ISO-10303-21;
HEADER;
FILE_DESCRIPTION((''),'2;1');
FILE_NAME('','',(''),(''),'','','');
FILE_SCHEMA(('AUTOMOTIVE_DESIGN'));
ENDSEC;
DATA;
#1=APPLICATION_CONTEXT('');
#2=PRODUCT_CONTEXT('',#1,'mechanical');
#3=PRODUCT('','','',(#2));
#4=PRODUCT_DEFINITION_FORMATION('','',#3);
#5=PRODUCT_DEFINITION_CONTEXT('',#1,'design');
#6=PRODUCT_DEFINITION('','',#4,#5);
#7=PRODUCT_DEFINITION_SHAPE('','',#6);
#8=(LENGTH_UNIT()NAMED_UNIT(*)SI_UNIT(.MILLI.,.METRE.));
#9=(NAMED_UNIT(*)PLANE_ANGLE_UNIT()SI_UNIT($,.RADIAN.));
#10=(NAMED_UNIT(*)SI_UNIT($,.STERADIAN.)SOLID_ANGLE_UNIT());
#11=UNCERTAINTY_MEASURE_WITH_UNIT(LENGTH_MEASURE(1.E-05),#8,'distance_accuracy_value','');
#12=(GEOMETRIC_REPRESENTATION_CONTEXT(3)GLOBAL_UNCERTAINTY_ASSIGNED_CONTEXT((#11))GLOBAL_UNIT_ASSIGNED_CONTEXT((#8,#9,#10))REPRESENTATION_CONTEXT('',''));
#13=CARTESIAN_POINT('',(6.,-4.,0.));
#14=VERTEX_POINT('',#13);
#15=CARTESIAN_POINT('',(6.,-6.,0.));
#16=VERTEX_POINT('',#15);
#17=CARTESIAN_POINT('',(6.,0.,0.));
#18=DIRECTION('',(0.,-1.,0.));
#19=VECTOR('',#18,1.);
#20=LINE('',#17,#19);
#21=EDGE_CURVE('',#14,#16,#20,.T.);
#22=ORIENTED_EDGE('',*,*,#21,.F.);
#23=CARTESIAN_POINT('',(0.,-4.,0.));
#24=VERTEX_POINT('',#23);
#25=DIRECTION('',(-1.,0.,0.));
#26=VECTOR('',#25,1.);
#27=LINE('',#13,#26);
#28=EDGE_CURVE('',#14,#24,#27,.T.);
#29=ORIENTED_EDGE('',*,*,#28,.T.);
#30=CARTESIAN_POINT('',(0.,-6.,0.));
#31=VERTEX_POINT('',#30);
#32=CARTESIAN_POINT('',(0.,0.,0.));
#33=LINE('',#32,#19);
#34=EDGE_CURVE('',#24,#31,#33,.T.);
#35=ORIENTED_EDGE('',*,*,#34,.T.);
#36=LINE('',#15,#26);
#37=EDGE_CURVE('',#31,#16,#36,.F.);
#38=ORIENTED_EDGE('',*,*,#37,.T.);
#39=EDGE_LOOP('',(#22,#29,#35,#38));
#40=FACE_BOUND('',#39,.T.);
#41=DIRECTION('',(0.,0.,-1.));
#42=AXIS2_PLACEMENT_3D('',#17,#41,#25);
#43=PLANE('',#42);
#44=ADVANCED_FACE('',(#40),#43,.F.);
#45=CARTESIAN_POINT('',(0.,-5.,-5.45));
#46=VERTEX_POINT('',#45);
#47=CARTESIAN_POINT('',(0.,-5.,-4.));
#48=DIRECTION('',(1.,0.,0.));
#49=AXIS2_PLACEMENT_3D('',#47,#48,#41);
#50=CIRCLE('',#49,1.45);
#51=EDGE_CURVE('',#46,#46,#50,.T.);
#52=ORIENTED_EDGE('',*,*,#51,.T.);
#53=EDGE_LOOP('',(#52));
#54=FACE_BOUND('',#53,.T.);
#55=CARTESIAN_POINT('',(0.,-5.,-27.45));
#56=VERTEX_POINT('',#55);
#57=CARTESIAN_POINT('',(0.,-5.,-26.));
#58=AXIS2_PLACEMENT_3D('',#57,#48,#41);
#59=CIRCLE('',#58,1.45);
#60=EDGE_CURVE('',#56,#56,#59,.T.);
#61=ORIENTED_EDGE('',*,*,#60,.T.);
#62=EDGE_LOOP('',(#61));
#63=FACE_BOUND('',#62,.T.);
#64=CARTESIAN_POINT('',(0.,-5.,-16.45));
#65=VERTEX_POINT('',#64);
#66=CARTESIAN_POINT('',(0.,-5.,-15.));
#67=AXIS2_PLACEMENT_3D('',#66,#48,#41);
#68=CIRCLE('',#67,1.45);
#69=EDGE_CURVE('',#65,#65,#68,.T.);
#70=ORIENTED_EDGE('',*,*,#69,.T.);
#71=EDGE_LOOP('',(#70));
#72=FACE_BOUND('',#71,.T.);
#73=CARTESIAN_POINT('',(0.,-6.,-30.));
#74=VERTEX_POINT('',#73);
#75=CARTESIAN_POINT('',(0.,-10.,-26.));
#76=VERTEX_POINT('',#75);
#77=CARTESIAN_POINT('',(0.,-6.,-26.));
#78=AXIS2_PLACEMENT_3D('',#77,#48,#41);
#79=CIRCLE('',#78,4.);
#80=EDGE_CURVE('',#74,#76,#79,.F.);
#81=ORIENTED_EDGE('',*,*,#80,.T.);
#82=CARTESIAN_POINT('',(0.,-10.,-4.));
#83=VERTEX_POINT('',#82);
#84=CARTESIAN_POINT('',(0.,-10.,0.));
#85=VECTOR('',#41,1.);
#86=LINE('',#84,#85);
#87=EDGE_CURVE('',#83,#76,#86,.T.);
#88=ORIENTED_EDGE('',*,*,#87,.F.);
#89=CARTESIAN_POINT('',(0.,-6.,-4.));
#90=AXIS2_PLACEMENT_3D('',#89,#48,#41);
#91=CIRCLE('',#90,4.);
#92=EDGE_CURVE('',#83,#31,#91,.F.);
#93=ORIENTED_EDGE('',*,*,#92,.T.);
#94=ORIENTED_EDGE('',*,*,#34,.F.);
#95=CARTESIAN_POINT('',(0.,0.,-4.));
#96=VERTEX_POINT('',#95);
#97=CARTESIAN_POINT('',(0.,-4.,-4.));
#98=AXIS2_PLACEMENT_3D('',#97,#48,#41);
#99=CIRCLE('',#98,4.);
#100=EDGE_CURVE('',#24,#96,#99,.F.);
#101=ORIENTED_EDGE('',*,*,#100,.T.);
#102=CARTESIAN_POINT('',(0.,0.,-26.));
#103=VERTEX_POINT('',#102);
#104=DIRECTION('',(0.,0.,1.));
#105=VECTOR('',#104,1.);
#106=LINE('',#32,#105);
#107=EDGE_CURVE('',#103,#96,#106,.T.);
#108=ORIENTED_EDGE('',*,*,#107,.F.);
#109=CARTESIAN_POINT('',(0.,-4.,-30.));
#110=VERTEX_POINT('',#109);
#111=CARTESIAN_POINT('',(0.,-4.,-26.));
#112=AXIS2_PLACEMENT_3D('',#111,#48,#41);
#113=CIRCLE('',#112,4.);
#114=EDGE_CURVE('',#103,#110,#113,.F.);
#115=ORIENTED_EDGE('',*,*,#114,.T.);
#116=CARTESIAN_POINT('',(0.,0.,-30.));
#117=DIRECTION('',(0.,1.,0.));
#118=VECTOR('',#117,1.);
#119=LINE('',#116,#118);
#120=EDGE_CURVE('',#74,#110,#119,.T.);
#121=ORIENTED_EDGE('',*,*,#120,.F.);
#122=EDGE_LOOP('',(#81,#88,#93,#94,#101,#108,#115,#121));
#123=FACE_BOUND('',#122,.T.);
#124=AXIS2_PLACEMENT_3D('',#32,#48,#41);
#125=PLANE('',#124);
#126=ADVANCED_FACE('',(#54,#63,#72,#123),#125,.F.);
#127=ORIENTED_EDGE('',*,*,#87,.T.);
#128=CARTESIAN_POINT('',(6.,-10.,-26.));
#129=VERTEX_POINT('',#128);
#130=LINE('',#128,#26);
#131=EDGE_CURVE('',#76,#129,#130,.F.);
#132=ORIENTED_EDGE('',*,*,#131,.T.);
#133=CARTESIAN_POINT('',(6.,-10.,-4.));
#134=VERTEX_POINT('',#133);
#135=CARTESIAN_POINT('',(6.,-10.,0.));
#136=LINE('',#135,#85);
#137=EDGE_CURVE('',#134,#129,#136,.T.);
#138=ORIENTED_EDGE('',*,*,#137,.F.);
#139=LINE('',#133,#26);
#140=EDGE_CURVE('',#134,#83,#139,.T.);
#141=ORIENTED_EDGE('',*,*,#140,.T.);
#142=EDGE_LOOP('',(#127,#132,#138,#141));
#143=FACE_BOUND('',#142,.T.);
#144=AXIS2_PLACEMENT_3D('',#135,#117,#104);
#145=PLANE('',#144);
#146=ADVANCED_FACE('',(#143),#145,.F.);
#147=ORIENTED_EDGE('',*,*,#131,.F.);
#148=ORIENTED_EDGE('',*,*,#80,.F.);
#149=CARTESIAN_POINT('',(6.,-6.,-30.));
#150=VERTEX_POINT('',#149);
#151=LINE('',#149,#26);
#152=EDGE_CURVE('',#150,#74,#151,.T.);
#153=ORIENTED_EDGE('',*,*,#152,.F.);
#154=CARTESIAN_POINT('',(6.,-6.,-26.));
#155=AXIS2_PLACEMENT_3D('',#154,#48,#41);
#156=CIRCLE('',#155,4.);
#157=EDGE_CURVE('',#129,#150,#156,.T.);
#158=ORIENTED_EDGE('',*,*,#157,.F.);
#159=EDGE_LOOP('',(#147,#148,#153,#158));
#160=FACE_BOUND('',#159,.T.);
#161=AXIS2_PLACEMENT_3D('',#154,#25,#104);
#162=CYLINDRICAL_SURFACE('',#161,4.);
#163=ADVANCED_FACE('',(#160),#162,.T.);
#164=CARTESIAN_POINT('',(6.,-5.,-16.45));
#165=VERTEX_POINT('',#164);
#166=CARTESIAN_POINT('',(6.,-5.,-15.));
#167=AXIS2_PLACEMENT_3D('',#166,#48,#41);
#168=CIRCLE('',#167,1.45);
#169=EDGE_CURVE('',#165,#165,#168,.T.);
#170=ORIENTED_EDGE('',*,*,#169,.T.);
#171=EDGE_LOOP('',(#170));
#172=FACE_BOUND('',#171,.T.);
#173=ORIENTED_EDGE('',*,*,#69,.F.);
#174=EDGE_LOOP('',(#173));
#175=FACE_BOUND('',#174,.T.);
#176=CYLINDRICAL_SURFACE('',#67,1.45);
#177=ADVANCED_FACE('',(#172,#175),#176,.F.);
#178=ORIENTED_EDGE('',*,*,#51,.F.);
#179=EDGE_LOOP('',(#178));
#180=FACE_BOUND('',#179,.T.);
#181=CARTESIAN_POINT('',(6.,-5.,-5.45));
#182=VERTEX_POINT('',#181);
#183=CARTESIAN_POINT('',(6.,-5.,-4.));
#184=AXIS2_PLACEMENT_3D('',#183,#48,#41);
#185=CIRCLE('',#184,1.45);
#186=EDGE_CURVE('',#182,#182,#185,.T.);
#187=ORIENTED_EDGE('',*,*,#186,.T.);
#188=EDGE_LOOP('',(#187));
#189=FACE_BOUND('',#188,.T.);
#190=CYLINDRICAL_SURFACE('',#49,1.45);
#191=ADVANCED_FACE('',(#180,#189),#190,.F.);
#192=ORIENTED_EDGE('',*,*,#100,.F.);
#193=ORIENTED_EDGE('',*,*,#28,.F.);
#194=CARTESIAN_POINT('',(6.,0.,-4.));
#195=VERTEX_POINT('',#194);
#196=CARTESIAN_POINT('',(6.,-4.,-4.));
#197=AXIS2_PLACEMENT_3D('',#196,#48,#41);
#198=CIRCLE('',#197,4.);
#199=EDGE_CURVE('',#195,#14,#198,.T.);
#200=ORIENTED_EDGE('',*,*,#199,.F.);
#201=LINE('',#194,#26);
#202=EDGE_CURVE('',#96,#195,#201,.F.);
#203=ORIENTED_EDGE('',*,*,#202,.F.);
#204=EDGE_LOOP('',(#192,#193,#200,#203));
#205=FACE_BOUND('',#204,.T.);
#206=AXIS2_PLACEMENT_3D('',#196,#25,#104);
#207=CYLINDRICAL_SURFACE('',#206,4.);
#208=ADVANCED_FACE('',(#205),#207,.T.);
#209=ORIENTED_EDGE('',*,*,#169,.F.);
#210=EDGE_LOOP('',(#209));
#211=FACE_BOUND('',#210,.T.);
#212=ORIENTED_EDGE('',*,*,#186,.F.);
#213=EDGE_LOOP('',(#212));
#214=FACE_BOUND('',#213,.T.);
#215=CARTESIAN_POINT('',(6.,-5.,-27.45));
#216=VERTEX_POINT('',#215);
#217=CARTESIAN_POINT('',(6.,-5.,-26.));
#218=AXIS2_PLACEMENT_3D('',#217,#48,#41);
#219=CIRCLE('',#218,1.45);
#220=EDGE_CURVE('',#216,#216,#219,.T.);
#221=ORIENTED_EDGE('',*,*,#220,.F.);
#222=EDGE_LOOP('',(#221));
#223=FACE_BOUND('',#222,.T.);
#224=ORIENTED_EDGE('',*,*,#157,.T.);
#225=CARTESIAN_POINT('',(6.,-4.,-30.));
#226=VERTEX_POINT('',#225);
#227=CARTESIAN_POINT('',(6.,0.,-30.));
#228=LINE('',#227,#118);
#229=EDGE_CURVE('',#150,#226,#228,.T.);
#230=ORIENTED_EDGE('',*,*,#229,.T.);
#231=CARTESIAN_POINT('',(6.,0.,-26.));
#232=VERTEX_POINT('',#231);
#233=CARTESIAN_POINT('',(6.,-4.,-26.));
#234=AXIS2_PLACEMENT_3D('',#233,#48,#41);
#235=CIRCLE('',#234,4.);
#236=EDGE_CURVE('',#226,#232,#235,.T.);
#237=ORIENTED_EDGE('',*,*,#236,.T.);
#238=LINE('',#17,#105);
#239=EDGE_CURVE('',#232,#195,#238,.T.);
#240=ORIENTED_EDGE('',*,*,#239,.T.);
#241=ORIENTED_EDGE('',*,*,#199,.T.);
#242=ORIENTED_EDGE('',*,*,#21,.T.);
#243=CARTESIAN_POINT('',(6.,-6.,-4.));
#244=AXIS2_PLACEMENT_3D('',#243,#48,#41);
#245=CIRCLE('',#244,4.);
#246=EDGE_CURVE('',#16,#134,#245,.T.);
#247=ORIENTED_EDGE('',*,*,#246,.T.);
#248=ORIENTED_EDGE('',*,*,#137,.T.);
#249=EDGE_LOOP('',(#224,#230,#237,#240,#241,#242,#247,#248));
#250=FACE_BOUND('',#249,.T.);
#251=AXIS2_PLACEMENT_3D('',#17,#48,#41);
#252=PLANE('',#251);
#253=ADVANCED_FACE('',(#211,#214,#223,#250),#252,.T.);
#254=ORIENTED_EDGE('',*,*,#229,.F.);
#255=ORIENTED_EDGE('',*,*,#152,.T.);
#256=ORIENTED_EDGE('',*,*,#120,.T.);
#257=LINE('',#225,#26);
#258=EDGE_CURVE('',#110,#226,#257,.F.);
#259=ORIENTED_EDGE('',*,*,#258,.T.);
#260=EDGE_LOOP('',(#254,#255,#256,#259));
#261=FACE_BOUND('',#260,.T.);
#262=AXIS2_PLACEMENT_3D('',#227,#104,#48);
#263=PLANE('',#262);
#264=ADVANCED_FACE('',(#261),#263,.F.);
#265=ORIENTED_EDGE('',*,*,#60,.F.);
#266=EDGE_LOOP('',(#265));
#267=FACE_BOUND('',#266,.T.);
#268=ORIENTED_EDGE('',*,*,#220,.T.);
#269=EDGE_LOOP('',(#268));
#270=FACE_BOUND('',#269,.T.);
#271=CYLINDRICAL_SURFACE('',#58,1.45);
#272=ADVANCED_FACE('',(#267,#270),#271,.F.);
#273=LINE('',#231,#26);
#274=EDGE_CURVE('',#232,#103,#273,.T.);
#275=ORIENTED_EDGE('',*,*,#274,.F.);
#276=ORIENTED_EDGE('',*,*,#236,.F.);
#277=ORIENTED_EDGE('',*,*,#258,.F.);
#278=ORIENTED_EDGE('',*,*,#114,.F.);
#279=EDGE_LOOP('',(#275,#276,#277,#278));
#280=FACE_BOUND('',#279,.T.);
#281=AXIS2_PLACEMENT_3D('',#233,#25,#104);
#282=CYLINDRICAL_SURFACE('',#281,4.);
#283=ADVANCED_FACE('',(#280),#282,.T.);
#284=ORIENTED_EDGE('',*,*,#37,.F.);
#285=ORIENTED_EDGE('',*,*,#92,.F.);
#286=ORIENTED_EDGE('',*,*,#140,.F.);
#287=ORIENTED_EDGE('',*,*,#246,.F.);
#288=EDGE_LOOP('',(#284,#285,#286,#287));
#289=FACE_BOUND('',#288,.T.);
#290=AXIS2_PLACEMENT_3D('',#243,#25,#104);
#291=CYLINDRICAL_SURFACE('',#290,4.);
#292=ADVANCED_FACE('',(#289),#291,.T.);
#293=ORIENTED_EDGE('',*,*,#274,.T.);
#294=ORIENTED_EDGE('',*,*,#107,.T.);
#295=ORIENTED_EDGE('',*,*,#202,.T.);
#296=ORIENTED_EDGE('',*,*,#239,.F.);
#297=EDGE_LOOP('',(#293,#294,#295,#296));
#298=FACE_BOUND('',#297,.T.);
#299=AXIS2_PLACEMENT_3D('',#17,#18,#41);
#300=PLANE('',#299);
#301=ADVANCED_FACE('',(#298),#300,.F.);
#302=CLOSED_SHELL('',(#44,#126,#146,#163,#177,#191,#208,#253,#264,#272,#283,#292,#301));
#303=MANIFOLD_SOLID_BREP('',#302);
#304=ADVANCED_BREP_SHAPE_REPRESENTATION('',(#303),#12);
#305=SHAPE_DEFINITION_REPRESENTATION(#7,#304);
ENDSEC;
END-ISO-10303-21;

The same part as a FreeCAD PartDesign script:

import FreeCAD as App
import Part
import Sketcher
Q = App.Units.Quantity


def edges_at(feature, points):
    """Names of the edges that pass closest to the given points."""
    edges = feature.Shape.Edges
    near = lambda p: min(range(len(edges)), key=lambda i: edges[i].distToShape(Part.Vertex(*p))[0])
    return sorted({f"Edge{near(p) + 1}" for p in points})

doc = App.newDocument("Part")
body = doc.addObject("PartDesign::Body", "Body")

# Sketch on YZ plane
sketch1 = body.newObject("Sketcher::SketchObject", "Sketch")
sketch1.AttachmentSupport = (doc.getObject("YZ_Plane"), [""])
sketch1.MapMode = "FlatFace"
sketch1.addGeometry([
    Part.LineSegment(App.Vector(0, 0, 0), App.Vector(-10, 0, 0)),
    Part.LineSegment(App.Vector(-10, 0, 0), App.Vector(-10, -30, 0)),
    Part.LineSegment(App.Vector(-10, -30, 0), App.Vector(0, -30, 0)),
    Part.LineSegment(App.Vector(0, -30, 0), App.Vector(0, 0, 0)),
], False)
sketch1.addConstraint([
    Sketcher.Constraint("Coincident", 0, 2, 1, 1),
    Sketcher.Constraint("Coincident", 1, 2, 2, 1),
    Sketcher.Constraint("Coincident", 2, 2, 3, 1),
    Sketcher.Constraint("Coincident", 3, 2, 0, 1),
    Sketcher.Constraint("Horizontal", 0),
    Sketcher.Constraint("Vertical", 1),
    Sketcher.Constraint("Horizontal", 2),
    Sketcher.Constraint("Vertical", 3),
    Sketcher.Constraint("Coincident", 3, 2, -1, 1),
    Sketcher.Constraint("DistanceX", 0, 2, 0, 1, Q("10 mm")),
    Sketcher.Constraint("DistanceY", 1, 2, 1, 1, Q("30 mm")),
])
pad1 = body.newObject("PartDesign::Pad", "Pad")
pad1.Profile = sketch1
pad1.Length = 6

# Sketch on YZ plane
sketch2 = body.newObject("Sketcher::SketchObject", "Sketch001")
sketch2.AttachmentSupport = (doc.getObject("YZ_Plane"), [""])
sketch2.MapMode = "FlatFace"
sketch2.AttachmentOffset = App.Placement(App.Vector(0, 0, 6), App.Rotation())
sketch2.addGeometry([
    Part.Circle(App.Vector(-5, -4, 0), App.Vector(0, 0, 1), 1.4),
    Part.Circle(App.Vector(-5, -15, 0), App.Vector(0, 0, 1), 1.4),
    Part.Circle(App.Vector(-5, -26, 0), App.Vector(0, 0, 1), 1.4),
], False)
sketch2.addConstraint([
    Sketcher.Constraint("Equal", 0, 1),
    Sketcher.Constraint("Equal", 1, 2),
    Sketcher.Constraint("Vertical", 0, 3, 1, 3),
    Sketcher.Constraint("Vertical", 1, 3, 2, 3),
    Sketcher.Constraint("Diameter", 0, Q("2.9 mm")),
    Sketcher.Constraint("DistanceX", 0, 3, -1, 1, Q("5 mm")),
    Sketcher.Constraint("DistanceY", 0, 3, -1, 1, Q("4 mm")),
    Sketcher.Constraint("DistanceY", 1, 3, -1, 1, Q("15 mm")),
    Sketcher.Constraint("DistanceY", 2, 3, -1, 1, Q("26 mm")),
])
pocket1 = body.newObject("PartDesign::Pocket", "Pocket")
pocket1.Profile = sketch2
pocket1.Type = "ThroughAll"
doc.recompute()

fillet = body.newObject("PartDesign::Fillet", "Fillet")
fillet.Base = (pocket1, edges_at(pocket1, [
    (3, 0, 0),
    (3, 0, -30),
    (3, -10, -30),
    (3, -10, 0),
]))
fillet.Radius = 4

doc.recompute()
